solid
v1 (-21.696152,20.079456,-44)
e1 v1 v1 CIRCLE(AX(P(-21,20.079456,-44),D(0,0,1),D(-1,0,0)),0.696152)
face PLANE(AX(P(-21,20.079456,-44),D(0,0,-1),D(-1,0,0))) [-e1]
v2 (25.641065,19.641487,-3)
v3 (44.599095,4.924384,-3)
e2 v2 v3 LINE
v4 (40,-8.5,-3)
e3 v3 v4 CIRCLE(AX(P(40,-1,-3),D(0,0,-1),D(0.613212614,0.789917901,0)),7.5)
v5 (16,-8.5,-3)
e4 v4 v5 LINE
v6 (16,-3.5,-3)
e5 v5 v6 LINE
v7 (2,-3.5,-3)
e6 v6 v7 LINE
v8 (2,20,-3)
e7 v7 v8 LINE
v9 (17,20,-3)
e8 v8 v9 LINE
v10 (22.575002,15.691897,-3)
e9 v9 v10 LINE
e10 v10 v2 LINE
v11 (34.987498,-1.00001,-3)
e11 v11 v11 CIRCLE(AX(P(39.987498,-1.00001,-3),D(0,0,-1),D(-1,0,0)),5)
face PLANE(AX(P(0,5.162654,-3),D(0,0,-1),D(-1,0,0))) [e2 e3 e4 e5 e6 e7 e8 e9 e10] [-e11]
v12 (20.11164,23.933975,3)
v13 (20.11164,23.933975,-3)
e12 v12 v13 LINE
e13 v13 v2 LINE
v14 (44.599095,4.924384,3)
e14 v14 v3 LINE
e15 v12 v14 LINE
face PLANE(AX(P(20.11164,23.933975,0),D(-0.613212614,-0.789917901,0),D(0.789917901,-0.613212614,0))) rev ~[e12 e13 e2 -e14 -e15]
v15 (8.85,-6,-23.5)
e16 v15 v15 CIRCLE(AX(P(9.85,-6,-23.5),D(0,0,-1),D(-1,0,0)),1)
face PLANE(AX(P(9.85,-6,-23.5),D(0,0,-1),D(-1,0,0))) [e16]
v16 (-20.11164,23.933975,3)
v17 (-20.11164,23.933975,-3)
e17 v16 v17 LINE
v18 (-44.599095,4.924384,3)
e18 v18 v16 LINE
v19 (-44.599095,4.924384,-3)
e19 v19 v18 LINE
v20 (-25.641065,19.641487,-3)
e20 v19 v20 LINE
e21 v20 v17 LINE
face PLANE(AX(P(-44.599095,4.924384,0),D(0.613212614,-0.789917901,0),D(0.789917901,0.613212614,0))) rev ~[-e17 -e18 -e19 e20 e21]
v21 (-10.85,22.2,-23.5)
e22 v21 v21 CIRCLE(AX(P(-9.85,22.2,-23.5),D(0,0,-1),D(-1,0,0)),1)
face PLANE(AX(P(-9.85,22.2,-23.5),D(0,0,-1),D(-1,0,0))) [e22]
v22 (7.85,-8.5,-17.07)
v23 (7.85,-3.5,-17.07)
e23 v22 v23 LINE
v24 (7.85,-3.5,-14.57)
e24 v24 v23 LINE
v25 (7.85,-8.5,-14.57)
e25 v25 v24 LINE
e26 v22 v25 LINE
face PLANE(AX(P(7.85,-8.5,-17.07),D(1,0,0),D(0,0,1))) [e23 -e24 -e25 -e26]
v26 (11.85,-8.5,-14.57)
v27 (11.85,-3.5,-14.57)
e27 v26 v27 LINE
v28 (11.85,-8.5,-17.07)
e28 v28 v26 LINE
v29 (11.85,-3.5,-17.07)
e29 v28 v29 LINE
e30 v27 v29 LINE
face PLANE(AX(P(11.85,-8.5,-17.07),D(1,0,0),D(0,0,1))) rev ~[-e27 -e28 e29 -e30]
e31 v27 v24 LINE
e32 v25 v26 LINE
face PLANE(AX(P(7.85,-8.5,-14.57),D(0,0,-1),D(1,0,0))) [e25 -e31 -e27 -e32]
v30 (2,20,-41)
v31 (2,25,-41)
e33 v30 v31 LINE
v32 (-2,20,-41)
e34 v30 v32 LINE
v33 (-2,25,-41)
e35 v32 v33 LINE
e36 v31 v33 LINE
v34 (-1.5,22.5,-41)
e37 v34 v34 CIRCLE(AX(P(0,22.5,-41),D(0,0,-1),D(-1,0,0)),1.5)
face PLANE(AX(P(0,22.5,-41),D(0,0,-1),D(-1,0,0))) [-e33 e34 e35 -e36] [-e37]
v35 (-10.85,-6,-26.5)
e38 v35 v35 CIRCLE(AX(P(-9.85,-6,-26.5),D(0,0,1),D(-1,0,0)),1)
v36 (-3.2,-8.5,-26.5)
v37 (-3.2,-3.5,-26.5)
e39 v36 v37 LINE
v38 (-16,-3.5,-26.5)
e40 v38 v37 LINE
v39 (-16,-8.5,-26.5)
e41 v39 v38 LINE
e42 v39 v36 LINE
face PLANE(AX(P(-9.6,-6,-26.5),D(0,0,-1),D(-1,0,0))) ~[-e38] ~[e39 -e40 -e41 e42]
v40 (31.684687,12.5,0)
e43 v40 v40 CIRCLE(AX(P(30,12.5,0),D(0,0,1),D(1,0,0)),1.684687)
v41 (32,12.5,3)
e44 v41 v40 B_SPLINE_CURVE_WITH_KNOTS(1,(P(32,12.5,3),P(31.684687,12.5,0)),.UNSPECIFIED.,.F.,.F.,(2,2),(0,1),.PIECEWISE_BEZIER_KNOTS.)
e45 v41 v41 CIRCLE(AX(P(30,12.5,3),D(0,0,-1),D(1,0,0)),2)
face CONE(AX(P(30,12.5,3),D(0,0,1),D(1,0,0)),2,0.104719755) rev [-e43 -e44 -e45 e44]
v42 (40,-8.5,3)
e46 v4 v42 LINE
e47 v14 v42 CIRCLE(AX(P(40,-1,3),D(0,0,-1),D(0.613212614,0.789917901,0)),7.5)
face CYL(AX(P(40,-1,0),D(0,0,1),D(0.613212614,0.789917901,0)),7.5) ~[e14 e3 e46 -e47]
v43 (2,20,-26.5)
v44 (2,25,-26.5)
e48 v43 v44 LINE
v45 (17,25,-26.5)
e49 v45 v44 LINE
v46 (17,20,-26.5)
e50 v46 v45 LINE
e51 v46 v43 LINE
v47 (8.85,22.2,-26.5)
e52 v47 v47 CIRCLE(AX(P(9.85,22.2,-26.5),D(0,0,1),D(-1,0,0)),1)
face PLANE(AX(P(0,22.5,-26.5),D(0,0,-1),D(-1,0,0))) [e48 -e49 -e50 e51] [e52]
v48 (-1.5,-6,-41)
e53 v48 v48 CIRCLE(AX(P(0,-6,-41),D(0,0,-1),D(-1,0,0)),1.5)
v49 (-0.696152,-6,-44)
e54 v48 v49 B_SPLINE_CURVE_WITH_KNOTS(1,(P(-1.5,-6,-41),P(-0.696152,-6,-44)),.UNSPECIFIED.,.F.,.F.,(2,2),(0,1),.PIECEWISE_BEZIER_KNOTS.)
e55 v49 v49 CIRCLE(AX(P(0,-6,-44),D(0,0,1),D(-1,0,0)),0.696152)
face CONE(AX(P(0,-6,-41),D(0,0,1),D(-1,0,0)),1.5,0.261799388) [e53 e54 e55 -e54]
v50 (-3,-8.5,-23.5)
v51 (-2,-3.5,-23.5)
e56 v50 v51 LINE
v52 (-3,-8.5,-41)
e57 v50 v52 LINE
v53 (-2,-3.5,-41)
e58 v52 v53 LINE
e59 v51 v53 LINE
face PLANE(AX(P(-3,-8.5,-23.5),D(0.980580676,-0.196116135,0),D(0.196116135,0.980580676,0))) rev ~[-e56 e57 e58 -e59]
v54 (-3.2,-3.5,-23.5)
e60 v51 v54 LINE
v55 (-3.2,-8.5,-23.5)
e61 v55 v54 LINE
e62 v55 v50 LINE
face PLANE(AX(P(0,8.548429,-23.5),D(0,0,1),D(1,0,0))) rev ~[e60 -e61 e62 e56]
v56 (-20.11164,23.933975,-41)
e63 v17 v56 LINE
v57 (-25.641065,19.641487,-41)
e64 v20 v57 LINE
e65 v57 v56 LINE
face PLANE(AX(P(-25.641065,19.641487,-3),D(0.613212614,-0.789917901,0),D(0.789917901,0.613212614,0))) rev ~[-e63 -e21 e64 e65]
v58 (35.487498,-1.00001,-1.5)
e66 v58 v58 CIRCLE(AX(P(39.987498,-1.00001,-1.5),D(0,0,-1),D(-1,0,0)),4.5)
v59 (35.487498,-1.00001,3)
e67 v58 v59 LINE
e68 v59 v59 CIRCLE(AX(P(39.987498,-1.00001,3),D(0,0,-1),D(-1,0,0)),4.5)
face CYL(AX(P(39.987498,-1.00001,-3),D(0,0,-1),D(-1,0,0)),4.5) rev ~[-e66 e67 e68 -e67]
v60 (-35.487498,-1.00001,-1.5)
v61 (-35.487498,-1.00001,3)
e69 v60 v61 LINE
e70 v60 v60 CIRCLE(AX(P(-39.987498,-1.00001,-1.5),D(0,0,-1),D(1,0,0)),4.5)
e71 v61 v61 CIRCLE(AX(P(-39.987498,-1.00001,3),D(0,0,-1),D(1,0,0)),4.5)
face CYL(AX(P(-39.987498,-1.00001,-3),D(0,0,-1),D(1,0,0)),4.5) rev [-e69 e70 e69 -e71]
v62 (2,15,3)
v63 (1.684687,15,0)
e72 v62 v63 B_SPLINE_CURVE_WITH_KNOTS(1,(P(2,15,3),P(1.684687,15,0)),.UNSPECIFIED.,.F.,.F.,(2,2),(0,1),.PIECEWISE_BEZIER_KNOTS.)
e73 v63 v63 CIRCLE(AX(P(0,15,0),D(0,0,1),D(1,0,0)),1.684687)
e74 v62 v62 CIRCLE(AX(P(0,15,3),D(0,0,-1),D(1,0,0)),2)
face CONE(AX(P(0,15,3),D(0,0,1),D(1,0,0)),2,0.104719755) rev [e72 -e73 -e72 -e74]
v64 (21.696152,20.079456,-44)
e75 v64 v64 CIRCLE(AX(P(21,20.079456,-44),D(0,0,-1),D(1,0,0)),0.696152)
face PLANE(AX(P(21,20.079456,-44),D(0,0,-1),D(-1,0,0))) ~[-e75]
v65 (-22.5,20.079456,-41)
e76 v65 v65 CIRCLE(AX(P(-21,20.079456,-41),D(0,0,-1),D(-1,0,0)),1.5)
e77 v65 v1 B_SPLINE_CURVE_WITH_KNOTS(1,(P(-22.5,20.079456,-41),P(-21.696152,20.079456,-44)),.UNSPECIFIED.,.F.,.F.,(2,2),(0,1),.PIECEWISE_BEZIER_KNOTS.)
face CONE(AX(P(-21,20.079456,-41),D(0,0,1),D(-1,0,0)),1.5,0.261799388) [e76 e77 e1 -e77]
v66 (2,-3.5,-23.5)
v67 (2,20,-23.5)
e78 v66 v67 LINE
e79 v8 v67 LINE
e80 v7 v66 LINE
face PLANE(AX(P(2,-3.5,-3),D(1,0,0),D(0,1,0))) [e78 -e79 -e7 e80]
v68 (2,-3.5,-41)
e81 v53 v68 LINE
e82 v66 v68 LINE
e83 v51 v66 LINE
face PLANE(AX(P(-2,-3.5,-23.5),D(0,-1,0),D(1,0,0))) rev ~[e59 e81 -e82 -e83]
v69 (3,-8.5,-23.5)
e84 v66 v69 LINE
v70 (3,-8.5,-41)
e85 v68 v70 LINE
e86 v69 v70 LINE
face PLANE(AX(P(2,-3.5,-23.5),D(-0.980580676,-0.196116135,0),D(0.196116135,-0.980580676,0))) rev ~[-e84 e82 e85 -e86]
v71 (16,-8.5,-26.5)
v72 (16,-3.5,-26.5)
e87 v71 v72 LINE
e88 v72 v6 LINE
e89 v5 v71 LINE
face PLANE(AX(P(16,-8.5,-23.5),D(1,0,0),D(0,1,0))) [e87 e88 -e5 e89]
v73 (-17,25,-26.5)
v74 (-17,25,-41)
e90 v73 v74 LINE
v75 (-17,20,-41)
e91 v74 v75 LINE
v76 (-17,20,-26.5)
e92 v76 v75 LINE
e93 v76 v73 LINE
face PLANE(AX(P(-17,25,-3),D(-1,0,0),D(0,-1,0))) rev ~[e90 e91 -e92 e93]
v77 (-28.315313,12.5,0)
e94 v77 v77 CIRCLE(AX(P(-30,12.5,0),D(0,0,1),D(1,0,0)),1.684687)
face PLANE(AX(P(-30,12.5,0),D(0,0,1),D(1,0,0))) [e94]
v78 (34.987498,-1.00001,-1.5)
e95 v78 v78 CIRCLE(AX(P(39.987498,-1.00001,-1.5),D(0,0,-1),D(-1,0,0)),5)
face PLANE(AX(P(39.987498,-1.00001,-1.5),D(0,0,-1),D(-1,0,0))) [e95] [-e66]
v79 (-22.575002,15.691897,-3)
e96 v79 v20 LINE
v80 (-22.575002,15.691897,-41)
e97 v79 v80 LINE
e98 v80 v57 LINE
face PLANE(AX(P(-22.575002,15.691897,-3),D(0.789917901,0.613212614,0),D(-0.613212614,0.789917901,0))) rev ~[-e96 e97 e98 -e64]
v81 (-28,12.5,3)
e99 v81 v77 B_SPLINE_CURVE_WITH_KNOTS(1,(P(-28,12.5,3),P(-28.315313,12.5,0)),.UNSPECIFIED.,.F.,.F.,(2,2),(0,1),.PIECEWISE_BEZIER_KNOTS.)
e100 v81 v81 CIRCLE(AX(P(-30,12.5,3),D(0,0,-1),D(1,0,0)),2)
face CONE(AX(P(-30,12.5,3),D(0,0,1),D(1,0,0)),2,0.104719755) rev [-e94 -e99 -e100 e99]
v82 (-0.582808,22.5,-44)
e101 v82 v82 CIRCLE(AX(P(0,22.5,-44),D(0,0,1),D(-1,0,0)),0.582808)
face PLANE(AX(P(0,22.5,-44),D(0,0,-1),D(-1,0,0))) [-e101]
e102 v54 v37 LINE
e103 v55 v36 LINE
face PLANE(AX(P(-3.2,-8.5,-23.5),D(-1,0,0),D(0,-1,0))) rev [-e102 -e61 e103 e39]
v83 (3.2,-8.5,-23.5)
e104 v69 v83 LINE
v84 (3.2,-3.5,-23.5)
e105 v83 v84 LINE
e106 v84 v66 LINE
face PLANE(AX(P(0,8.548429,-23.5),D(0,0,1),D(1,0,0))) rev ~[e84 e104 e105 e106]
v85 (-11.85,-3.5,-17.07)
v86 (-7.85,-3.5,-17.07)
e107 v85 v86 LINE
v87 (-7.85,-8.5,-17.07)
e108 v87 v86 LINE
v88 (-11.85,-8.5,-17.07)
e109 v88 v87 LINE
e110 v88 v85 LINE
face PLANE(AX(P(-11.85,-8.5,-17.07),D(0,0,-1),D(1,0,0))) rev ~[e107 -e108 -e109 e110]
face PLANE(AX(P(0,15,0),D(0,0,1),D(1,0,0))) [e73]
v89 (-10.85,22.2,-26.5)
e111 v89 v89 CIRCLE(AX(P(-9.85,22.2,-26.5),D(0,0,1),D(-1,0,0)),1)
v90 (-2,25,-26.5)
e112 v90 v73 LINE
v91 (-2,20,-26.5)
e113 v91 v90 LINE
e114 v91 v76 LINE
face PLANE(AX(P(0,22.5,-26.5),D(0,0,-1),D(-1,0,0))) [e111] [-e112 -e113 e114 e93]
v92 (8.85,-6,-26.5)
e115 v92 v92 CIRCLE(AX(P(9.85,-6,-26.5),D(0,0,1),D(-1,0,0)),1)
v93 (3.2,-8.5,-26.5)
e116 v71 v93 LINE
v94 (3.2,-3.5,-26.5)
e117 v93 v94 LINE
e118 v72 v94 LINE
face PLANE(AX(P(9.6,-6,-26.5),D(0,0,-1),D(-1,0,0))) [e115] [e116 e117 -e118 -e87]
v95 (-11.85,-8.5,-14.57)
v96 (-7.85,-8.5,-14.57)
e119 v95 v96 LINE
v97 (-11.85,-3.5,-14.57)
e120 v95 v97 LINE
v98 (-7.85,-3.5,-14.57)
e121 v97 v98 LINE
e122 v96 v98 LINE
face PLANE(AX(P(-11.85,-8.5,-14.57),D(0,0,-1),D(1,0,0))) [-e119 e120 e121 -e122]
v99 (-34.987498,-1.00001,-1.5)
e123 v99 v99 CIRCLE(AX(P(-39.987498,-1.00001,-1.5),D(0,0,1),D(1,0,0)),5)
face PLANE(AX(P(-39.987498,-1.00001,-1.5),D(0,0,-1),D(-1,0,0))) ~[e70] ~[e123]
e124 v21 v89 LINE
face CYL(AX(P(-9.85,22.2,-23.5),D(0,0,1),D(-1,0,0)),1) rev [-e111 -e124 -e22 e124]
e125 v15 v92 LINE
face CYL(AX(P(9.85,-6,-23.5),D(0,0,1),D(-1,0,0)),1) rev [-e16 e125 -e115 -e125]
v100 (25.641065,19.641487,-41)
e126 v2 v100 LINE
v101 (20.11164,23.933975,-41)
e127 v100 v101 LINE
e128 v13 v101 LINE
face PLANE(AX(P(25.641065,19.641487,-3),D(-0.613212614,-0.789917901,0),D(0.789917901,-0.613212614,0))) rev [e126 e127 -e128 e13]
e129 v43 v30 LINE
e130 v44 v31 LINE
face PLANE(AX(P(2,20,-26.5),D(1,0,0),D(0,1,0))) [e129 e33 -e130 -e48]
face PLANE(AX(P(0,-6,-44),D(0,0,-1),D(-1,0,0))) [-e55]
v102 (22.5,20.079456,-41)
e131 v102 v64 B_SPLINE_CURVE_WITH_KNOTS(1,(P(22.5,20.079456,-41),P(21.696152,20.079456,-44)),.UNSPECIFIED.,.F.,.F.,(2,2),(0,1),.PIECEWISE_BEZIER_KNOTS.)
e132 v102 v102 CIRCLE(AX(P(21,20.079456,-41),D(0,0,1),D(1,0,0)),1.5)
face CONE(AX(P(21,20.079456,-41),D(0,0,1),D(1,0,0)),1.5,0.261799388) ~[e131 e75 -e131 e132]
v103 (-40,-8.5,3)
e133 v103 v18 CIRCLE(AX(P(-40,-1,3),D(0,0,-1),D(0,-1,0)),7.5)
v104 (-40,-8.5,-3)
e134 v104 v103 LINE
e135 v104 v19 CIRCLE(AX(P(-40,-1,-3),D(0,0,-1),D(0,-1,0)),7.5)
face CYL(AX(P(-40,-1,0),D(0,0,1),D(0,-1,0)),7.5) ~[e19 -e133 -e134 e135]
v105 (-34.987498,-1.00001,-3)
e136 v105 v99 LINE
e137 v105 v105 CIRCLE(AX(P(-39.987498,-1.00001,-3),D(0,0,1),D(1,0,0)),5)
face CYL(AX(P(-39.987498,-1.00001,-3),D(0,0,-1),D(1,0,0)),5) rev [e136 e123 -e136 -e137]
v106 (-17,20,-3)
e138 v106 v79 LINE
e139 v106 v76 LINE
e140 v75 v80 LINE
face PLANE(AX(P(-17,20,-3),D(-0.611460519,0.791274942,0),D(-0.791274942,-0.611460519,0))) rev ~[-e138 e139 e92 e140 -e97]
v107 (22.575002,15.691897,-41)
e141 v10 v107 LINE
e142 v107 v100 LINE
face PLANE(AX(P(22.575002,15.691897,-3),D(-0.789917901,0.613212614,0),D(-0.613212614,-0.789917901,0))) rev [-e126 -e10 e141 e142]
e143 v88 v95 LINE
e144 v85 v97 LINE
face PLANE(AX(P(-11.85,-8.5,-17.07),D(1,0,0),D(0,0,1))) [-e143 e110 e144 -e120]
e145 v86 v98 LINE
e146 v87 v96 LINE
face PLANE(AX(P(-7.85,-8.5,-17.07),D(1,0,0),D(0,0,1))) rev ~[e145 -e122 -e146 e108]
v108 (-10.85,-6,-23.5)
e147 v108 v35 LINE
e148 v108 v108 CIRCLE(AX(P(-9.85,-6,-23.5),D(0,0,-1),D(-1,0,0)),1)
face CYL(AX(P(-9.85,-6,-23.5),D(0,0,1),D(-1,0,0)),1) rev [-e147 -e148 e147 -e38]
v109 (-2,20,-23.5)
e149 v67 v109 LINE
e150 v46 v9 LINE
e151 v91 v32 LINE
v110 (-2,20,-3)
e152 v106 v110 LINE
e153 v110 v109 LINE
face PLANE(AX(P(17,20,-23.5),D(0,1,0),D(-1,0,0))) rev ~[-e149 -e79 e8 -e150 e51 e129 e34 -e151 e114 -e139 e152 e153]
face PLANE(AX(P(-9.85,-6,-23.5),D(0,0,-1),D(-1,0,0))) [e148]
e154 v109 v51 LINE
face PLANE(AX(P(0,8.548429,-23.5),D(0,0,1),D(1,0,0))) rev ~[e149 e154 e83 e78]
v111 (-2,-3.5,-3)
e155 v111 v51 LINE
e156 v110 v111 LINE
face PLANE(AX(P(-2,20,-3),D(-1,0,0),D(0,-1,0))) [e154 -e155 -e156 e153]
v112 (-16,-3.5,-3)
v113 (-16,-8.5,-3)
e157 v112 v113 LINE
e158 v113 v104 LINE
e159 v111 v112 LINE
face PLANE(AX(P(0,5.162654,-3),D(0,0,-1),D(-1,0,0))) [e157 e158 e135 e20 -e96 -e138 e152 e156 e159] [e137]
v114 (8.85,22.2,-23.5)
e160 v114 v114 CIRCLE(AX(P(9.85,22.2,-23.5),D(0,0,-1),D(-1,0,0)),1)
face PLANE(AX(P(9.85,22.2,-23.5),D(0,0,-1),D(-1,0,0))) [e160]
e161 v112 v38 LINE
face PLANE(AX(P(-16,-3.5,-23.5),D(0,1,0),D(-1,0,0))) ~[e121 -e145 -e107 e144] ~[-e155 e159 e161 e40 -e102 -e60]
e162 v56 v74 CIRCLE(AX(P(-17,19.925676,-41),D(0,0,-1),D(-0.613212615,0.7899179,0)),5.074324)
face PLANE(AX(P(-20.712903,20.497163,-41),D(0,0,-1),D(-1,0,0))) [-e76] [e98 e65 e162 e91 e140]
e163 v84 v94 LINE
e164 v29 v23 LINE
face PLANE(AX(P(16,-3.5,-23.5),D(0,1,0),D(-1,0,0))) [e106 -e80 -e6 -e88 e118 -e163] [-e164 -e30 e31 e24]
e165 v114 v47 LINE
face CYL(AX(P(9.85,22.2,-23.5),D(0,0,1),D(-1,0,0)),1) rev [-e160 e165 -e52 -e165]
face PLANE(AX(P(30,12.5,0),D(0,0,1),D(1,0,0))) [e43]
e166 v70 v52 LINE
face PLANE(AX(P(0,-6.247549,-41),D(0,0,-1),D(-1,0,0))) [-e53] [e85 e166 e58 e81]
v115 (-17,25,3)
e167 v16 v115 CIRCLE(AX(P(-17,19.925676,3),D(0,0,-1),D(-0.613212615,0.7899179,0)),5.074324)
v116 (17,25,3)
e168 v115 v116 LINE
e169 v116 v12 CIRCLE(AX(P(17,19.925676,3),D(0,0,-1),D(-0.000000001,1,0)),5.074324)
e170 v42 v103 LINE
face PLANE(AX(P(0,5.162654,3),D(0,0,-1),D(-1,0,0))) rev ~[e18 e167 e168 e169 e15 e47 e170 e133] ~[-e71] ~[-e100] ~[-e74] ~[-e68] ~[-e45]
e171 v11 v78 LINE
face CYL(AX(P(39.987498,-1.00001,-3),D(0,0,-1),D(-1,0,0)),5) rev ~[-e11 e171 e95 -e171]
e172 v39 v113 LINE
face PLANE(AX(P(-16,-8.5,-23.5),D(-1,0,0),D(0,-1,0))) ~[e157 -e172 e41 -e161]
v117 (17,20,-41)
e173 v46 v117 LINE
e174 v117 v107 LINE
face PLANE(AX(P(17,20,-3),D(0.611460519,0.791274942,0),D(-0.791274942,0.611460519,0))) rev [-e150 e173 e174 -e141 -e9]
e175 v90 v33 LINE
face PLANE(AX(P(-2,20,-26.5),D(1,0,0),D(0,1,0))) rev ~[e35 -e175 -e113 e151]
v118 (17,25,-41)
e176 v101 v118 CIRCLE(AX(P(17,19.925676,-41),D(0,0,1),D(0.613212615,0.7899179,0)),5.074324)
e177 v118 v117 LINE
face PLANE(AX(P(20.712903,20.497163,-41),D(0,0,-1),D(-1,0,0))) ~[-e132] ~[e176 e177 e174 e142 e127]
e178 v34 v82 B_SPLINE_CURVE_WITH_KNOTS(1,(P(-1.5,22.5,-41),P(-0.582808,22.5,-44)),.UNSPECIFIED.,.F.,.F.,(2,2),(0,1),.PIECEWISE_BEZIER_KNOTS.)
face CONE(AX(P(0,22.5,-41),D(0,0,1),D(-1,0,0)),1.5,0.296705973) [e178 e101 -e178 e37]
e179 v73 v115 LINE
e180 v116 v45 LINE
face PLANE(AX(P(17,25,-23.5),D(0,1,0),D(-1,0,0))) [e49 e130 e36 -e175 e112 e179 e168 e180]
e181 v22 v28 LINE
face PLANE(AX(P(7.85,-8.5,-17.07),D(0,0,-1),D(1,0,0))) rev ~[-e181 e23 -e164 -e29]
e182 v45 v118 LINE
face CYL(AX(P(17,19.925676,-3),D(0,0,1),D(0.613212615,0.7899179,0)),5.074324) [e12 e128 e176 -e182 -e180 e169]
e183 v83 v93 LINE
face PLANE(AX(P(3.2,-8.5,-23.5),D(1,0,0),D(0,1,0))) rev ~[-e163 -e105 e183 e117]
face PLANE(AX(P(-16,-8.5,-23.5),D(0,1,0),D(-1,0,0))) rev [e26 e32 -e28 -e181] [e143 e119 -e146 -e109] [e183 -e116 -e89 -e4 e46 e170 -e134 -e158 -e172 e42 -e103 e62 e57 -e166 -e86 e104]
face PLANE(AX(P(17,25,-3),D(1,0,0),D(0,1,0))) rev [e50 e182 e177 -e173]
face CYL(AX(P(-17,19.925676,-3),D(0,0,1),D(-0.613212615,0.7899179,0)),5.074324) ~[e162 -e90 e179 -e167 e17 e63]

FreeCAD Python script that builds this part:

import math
import FreeCAD as App
import Part
import Sketcher

V = App.Vector

doc = App.newDocument("Part")
params = doc.addObject("Spreadsheet::Sheet", "Params")
for row, (alias, value) in enumerate([
    ("sketch1_radius", "7.5 mm"),
    ("sketch1_width", "80 mm"),
    ("sketch1_width2", "34 mm"),
    ("sketch1_length", "31 mm"),
    ("pad1_length", "6 mm"),
    ("sketch2_diameter", "9 mm"),
    ("pocket1_length", "8 mm"),
    ("sketch3_diameter", "10 mm"),
    ("pocket2_length", "1.5 mm"),
    ("sketch4_width", "34 mm"),
    ("sketch4_width2", "15 mm"),
    ("sketch4_width3", "14 mm"),
    ("sketch4_height", "5 mm"),
    ("sketch4_height2", "23.5 mm"),
    ("pad2_length", "20.5 mm"),
    ("sketch5_height", "5 mm"),
    ("sketch5_length", "5 mm"),
    ("sketch5_length2", "7 mm"),
    ("pad3_length", "38 mm"),
    ("sketch6_width", "4 mm"),
    ("sketch6_width2", "6 mm"),
    ("pad4_length", "17.5 mm"),
    ("sketch7_diameter", "3 mm"),
    ("pad5_length", "3 mm"),
    ("pad5_taper", "-15 deg"),
    ("sketch8_diameter", "4 mm"),
    ("pocket3_length", "3 mm"),
    ("pocket3_taper", "-6 deg"),
    ("sketch9_height", "5 mm"),
    ("sketch9_width", "12.8 mm"),
    ("pad6_length", "3 mm"),
    ("sketch10_width", "34 mm"),
    ("sketch10_height", "5 mm"),
    ("pad7_length", "3 mm"),
    ("sketch11_diameter", "2 mm"),
    ("pocket4_length", "5 mm"),
    ("sketch12_width", "4 mm"),
    ("sketch12_height", "2.5 mm"),
    ("pocket5_length", "10 mm"),
    ("sketch13_width", "4 mm"),
    ("sketch13_height", "5 mm"),
    ("pad8_length", "14.5 mm"),
    ("sketch14_diameter", "3 mm"),
    ("pad9_length", "3 mm"),
    ("pad9_taper", "-17 deg"),
], start=1):
    params.set(f"A{row}", alias)
    params.set(f"B{row}", "=" + value)
    params.setAlias(f"B{row}", alias)

body = doc.addObject("PartDesign::Body", "Body")

# Sketch on XY plane
sketch1 = body.newObject("Sketcher::SketchObject", "Sketch")
sketch1.AttachmentSupport = (doc.getObject("XY_Plane"), [""])
sketch1.MapMode = "FlatFace"
sketch1.addGeometry(Part.LineSegment(V(-20.1, 23.9, 0), V(-44.6, 4.9, 0)), False)
sketch1.addGeometry(Part.ArcOfCircle(Part.Circle(V(-40, -1, 0), V(0, 0, 1), 7.5), math.radians(128), math.radians(270)), False)
sketch1.addGeometry(Part.LineSegment(V(-40, -8.5, 0), V(40, -8.5, 0)), False)
sketch1.addGeometry(Part.ArcOfCircle(Part.Circle(V(40, -1, 0), V(0, 0, 1), 7.5), math.radians(-90), math.radians(52)), False)
sketch1.addGeometry(Part.LineSegment(V(44.6, 4.9, 0), V(20.1, 23.9, 0)), False)
sketch1.addGeometry(Part.ArcOfCircle(Part.Circle(V(17, 19.9, 0), V(0, 0, 1), 5.1), math.radians(52), math.radians(90)), False)
sketch1.addGeometry(Part.LineSegment(V(17, 25, 0), V(-17, 25, 0)), False)
sketch1.addGeometry(Part.ArcOfCircle(Part.Circle(V(-17, 19.9, 0), V(0, 0, 1), 5.1), math.radians(90), math.radians(128)), False)
sketch1.addConstraint(Sketcher.Constraint("Tangent", 0, 2, 1, 1))
sketch1.addConstraint(Sketcher.Constraint("Tangent", 1, 2, 2, 1))
sketch1.addConstraint(Sketcher.Constraint("Tangent", 2, 2, 3, 1))
sketch1.addConstraint(Sketcher.Constraint("Tangent", 3, 2, 4, 1))
sketch1.addConstraint(Sketcher.Constraint("Tangent", 4, 2, 5, 1))
sketch1.addConstraint(Sketcher.Constraint("Tangent", 5, 2, 6, 1))
sketch1.addConstraint(Sketcher.Constraint("Tangent", 6, 2, 7, 1))
sketch1.addConstraint(Sketcher.Constraint("Tangent", 7, 2, 0, 1))
sketch1.addConstraint(Sketcher.Constraint("Horizontal", 2))
sketch1.addConstraint(Sketcher.Constraint("Horizontal", 6))
sketch1.addConstraint(Sketcher.Constraint("Equal", 1, 3))
sketch1.addConstraint(Sketcher.Constraint("Equal", 5, 7))
sketch1.addConstraint(Sketcher.Constraint("Symmetric", 0, 2, 3, 2, -2))
sketch1.addConstraint(Sketcher.Constraint("Radius", 1, 7.5))
sketch1.addConstraint(Sketcher.Constraint("DistanceX", 2, 1, 2, 2, 80.0))
sketch1.addConstraint(Sketcher.Constraint("DistanceX", 6, 2, 6, 1, 34.0))
sketch1.addConstraint(Sketcher.Constraint("Distance", 0, 31.0))
sketch1.addConstraint(Sketcher.Constraint("DistanceY", 1, 3, -1, 1, 1.0))
sketch1.addConstraint(Sketcher.Constraint("DistanceY", -1, 1, 5, 2, 25.0))
sketch1.setExpression("Constraints[13]", "Params.sketch1_radius")
sketch1.setExpression("Constraints[14]", "Params.sketch1_width")
sketch1.setExpression("Constraints[15]", "Params.sketch1_width2")
sketch1.setExpression("Constraints[16]", "Params.sketch1_length")
pad1 = body.newObject("PartDesign::Pad", "Pad")
pad1.Profile = sketch1
pad1.setExpression("Length", "Params.pad1_length")
pad1.Midplane = True

# Sketch on XY plane
sketch2 = body.newObject("Sketcher::SketchObject", "Sketch001")
sketch2.AttachmentSupport = (doc.getObject("XY_Plane"), [""])
sketch2.MapMode = "FlatFace"
sketch2.AttachmentOffset = App.Placement(V(0, 0, -3), App.Rotation())
sketch2.addGeometry(Part.Circle(V(40, -1, 0), V(0, 0, 1), 4.5), False)
sketch2.addConstraint(Sketcher.Constraint("Diameter", 0, 9.0))
sketch2.addConstraint(Sketcher.Constraint("DistanceY", 0, 3, -1, 1, 1.00001))
sketch2.addConstraint(Sketcher.Constraint("DistanceX", -1, 1, 0, 3, 39.987498))
sketch2.setExpression("Constraints[0]", "Params.sketch2_diameter")
pocket1 = body.newObject("PartDesign::Pocket", "Pocket")
pocket1.Profile = sketch2
pocket1.setExpression("Length", "Params.pocket1_length")
pocket1.Reversed = True

# Sketch on XY plane
sketch3 = body.newObject("Sketcher::SketchObject", "Sketch002")
sketch3.AttachmentSupport = (doc.getObject("XY_Plane"), [""])
sketch3.MapMode = "FlatFace"
sketch3.AttachmentOffset = App.Placement(V(0, 0, -3), App.Rotation())
sketch3.addGeometry(Part.Circle(V(40, -1, 0), V(0, 0, 1), 5), False)
sketch3.addConstraint(Sketcher.Constraint("Diameter", 0, 10.0))
sketch3.addConstraint(Sketcher.Constraint("DistanceY", 0, 3, -1, 1, 1.00001))
sketch3.addConstraint(Sketcher.Constraint("DistanceX", -1, 1, 0, 3, 39.987498))
sketch3.setExpression("Constraints[0]", "Params.sketch3_diameter")
pocket2 = body.newObject("PartDesign::Pocket", "Pocket001")
pocket2.Profile = sketch3
pocket2.setExpression("Length", "Params.pocket2_length")
pocket2.Reversed = True
doc.recompute()

mirrored = body.newObject("PartDesign::Mirrored", "Mirrored")
mirrored.Originals = [pocket1, pocket2]
mirrored.MirrorPlane = (doc.getObject("YZ_Plane"), [""])
body.Tip = mirrored

# Sketch on XY plane
sketch4 = body.newObject("Sketcher::SketchObject", "Sketch003")
sketch4.AttachmentSupport = (doc.getObject("XY_Plane"), [""])
sketch4.MapMode = "FlatFace"
sketch4.AttachmentOffset = App.Placement(V(0, 0, -3), App.Rotation())
sketch4.addGeometry(Part.LineSegment(V(-17, 25, 0), V(17, 25, 0)), False)
sketch4.addGeometry(Part.LineSegment(V(17, 25, 0), V(17, 20, 0)), False)
sketch4.addGeometry(Part.LineSegment(V(17, 20, 0), V(2, 20, 0)), False)
sketch4.addGeometry(Part.LineSegment(V(2, 20, 0), V(2, -4, 0)), False)
sketch4.addGeometry(Part.LineSegment(V(2, -4, 0), V(16, -4, 0)), False)
sketch4.addGeometry(Part.LineSegment(V(16, -4, 0), V(16, -8, 0)), False)
sketch4.addGeometry(Part.LineSegment(V(16, -8, 0), V(-16, -8, 0)), False)
sketch4.addGeometry(Part.LineSegment(V(-16, -8, 0), V(-16, -4, 0)), False)
sketch4.addGeometry(Part.LineSegment(V(-16, -4, 0), V(-2, -4, 0)), False)
sketch4.addGeometry(Part.LineSegment(V(-2, -4, 0), V(-2, 20, 0)), False)
sketch4.addGeometry(Part.LineSegment(V(-2, 20, 0), V(-17, 20, 0)), False)
sketch4.addGeometry(Part.LineSegment(V(-17, 20, 0), V(-17, 25, 0)), False)
sketch4.addConstraint(Sketcher.Constraint("Coincident", 0, 2, 1, 1))
sketch4.addConstraint(Sketcher.Constraint("Coincident", 1, 2, 2, 1))
sketch4.addConstraint(Sketcher.Constraint("Coincident", 2, 2, 3, 1))
sketch4.addConstraint(Sketcher.Constraint("Coincident", 3, 2, 4, 1))
sketch4.addConstraint(Sketcher.Constraint("Coincident", 4, 2, 5, 1))
sketch4.addConstraint(Sketcher.Constraint("Coincident", 5, 2, 6, 1))
sketch4.addConstraint(Sketcher.Constraint("Coincident", 6, 2, 7, 1))
sketch4.addConstraint(Sketcher.Constraint("Coincident", 7, 2, 8, 1))
sketch4.addConstraint(Sketcher.Constraint("Coincident", 8, 2, 9, 1))
sketch4.addConstraint(Sketcher.Constraint("Coincident", 9, 2, 10, 1))
sketch4.addConstraint(Sketcher.Constraint("Coincident", 10, 2, 11, 1))
sketch4.addConstraint(Sketcher.Constraint("Coincident", 11, 2, 0, 1))
sketch4.addConstraint(Sketcher.Constraint("Horizontal", 0))
sketch4.addConstraint(Sketcher.Constraint("Vertical", 1))
sketch4.addConstraint(Sketcher.Constraint("Horizontal", 2))
sketch4.addConstraint(Sketcher.Constraint("Vertical", 3))
sketch4.addConstraint(Sketcher.Constraint("Horizontal", 4))
sketch4.addConstraint(Sketcher.Constraint("Vertical", 5))
sketch4.addConstraint(Sketcher.Constraint("Horizontal", 6))
sketch4.addConstraint(Sketcher.Constraint("Vertical", 7))
sketch4.addConstraint(Sketcher.Constraint("Horizontal", 8))
sketch4.addConstraint(Sketcher.Constraint("Vertical", 9))
sketch4.addConstraint(Sketcher.Constraint("Horizontal", 10))
sketch4.addConstraint(Sketcher.Constraint("Vertical", 11))
sketch4.addConstraint(Sketcher.Constraint("Symmetric", 4, 2, 7, 2, -2))
sketch4.addConstraint(Sketcher.Constraint("Symmetric", 2, 2, 9, 2, -2))
sketch4.addConstraint(Sketcher.Constraint("Equal", 2, 10))
sketch4.addConstraint(Sketcher.Constraint("Equal", 1, 5))
sketch4.addConstraint(Sketcher.Constraint("DistanceX", 0, 1, 0, 2, 34.0))
sketch4.addConstraint(Sketcher.Constraint("DistanceX", 2, 2, 2, 1, 15.0))
sketch4.addConstraint(Sketcher.Constraint("DistanceX", 4, 1, 4, 2, 14.0))
sketch4.addConstraint(Sketcher.Constraint("DistanceY", 1, 2, 1, 1, 5.0))
sketch4.addConstraint(Sketcher.Constraint("DistanceY", 3, 2, 3, 1, 23.5))
sketch4.addConstraint(Sketcher.Constraint("DistanceY", -1, 1, 0, 2, 25.0))
sketch4.setExpression("Constraints[28]", "Params.sketch4_width")
sketch4.setExpression("Constraints[29]", "Params.sketch4_width2")
sketch4.setExpression("Constraints[30]", "Params.sketch4_width3")
sketch4.setExpression("Constraints[31]", "Params.sketch4_height")
sketch4.setExpression("Constraints[32]", "Params.sketch4_height2")
pad2 = body.newObject("PartDesign::Pad", "Pad001")
pad2.Profile = sketch4
pad2.setExpression("Length", "Params.pad2_length")
pad2.Reversed = True

# Sketch on XY plane
sketch5 = body.newObject("Sketcher::SketchObject", "Sketch004")
sketch5.AttachmentSupport = (doc.getObject("XY_Plane"), [""])
sketch5.MapMode = "FlatFace"
sketch5.AttachmentOffset = App.Placement(V(0, 0, -3), App.Rotation())
sketch5.addGeometry(Part.LineSegment(V(-17, 20, 0), V(-22.6, 15.7, 0)), False)
sketch5.addGeometry(Part.LineSegment(V(-22.6, 15.7, 0), V(-25.6, 19.6, 0)), False)
sketch5.addGeometry(Part.LineSegment(V(-25.6, 19.6, 0), V(-20.1, 23.9, 0)), False)
sketch5.addGeometry(Part.ArcOfCircle(Part.Circle(V(-17, 19.9, 0), V(0, 0, 1), 5.1), math.radians(90), math.radians(128)), False)
sketch5.addGeometry(Part.LineSegment(V(-17, 25, 0), V(-17, 20, 0)), False)
sketch5.addConstraint(Sketcher.Constraint("Coincident", 0, 2, 1, 1))
sketch5.addConstraint(Sketcher.Constraint("Coincident", 1, 2, 2, 1))
sketch5.addConstraint(Sketcher.Constraint("Tangent", 2, 2, 3, 2))
sketch5.addConstraint(Sketcher.Constraint("Coincident", 3, 1, 4, 1))
sketch5.addConstraint(Sketcher.Constraint("Coincident", 4, 2, 0, 1))
sketch5.addConstraint(Sketcher.Constraint("Vertical", 4))
sketch5.addConstraint(Sketcher.Constraint("Perpendicular", 1, 2))
sketch5.addConstraint(Sketcher.Constraint("DistanceY", 4, 2, 4, 1, 5.0))
sketch5.addConstraint(Sketcher.Constraint("Distance", 1, 5.0))
sketch5.addConstraint(Sketcher.Constraint("Distance", 2, 7.0))
sketch5.addConstraint(Sketcher.Constraint("DistanceX", 3, 3, -1, 1, 17.0))
sketch5.addConstraint(Sketcher.Constraint("DistanceX", 3, 1, -1, 1, 17.0))
sketch5.addConstraint(Sketcher.Constraint("DistanceY", -1, 1, 3, 1, 25.0))
sketch5.addConstraint(Sketcher.Constraint("DistanceX", 0, 2, -1, 1, 22.575002))
sketch5.addConstraint(Sketcher.Constraint("Radius", 3, 5.074324))
sketch5.setExpression("Constraints[7]", "Params.sketch5_height")
sketch5.setExpression("Constraints[8]", "Params.sketch5_length")
sketch5.setExpression("Constraints[9]", "Params.sketch5_length2")
pad3 = body.newObject("PartDesign::Pad", "Pad002")
pad3.Profile = sketch5
pad3.setExpression("Length", "Params.pad3_length")
pad3.Reversed = True
doc.recompute()

mirrored2 = body.newObject("PartDesign::Mirrored", "Mirrored001")
mirrored2.Originals = [pad3]
mirrored2.MirrorPlane = (doc.getObject("YZ_Plane"), [""])
body.Tip = mirrored2

# Sketch on XY plane
sketch6 = body.newObject("Sketcher::SketchObject", "Sketch005")
sketch6.AttachmentSupport = (doc.getObject("XY_Plane"), [""])
sketch6.MapMode = "FlatFace"
sketch6.AttachmentOffset = App.Placement(V(0, 0, -23.5), App.Rotation())
sketch6.addGeometry(Part.LineSegment(V(-3, -8.5, 0), V(-2, -3.5, 0)), False)
sketch6.addGeometry(Part.LineSegment(V(-2, -3.5, 0), V(2, -3.5, 0)), False)
sketch6.addGeometry(Part.LineSegment(V(2, -3.5, 0), V(3, -8.5, 0)), False)
sketch6.addGeometry(Part.LineSegment(V(3, -8.5, 0), V(-3, -8.5, 0)), False)
sketch6.addConstraint(Sketcher.Constraint("Coincident", 0, 2, 1, 1))
sketch6.addConstraint(Sketcher.Constraint("Coincident", 1, 2, 2, 1))
sketch6.addConstraint(Sketcher.Constraint("Coincident", 2, 2, 3, 1))
sketch6.addConstraint(Sketcher.Constraint("Coincident", 3, 2, 0, 1))
sketch6.addConstraint(Sketcher.Constraint("Horizontal", 1))
sketch6.addConstraint(Sketcher.Constraint("Horizontal", 3))
sketch6.addConstraint(Sketcher.Constraint("Equal", 0, 2))
sketch6.addConstraint(Sketcher.Constraint("DistanceX", 1, 1, 1, 2, 4.0))
sketch6.addConstraint(Sketcher.Constraint("DistanceX", 3, 2, 3, 1, 6.0))
sketch6.addConstraint(Sketcher.Constraint("DistanceX", 0, 2, -1, 1, 2.0))
sketch6.addConstraint(Sketcher.Constraint("DistanceY", 2, 2, 1, 2, 5.0))
sketch6.addConstraint(Sketcher.Constraint("DistanceY", 0, 2, -1, 1, 3.5))
sketch6.setExpression("Constraints[7]", "Params.sketch6_width")
sketch6.setExpression("Constraints[8]", "Params.sketch6_width2")
pad4 = body.newObject("PartDesign::Pad", "Pad003")
pad4.Profile = sketch6
pad4.setExpression("Length", "Params.pad4_length")
pad4.Reversed = True

# Sketch on XY plane
sketch7 = body.newObject("Sketcher::SketchObject", "Sketch006")
sketch7.AttachmentSupport = (doc.getObject("XY_Plane"), [""])
sketch7.MapMode = "FlatFace"
sketch7.AttachmentOffset = App.Placement(V(0, 0, -41), App.Rotation())
sketch7.addGeometry(Part.Circle(V(-21, 20.1, 0), V(0, 0, 1), 1.5), False)
sketch7.addGeometry(Part.Circle(V(0, -6, 0), V(0, 0, 1), 1.5), False)
sketch7.addConstraint(Sketcher.Constraint("Equal", 0, 1))
sketch7.addConstraint(Sketcher.Constraint("PointOnObject", 1, 3, -2))
sketch7.addConstraint(Sketcher.Constraint("Diameter", 0, 3.0))
sketch7.addConstraint(Sketcher.Constraint("DistanceX", 0, 3, -1, 1, 21.0))
sketch7.addConstraint(Sketcher.Constraint("DistanceY", 1, 3, -1, 1, 6.0))
sketch7.addConstraint(Sketcher.Constraint("DistanceY", -1, 1, 0, 3, 20.079456))
sketch7.setExpression("Constraints[2]", "Params.sketch7_diameter")
pad5 = body.newObject("PartDesign::Pad", "Pad004")
pad5.Profile = sketch7
pad5.setExpression("Length", "Params.pad5_length")
pad5.Reversed = True
pad5.setExpression("TaperAngle", "Params.pad5_taper")
doc.recompute()

mirrored3 = body.newObject("PartDesign::Mirrored", "Mirrored002")
mirrored3.Originals = [pad5]
mirrored3.MirrorPlane = (doc.getObject("YZ_Plane"), [""])
body.Tip = mirrored3

# Sketch on XY plane
sketch8 = body.newObject("Sketcher::SketchObject", "Sketch007")
sketch8.AttachmentSupport = (doc.getObject("XY_Plane"), [""])
sketch8.MapMode = "FlatFace"
sketch8.AttachmentOffset = App.Placement(V(0, 0, 3), App.Rotation())
sketch8.addGeometry(Part.Circle(V(0, 15, 0), V(0, 0, 1), 2), False)
sketch8.addGeometry(Part.Circle(V(30, 12.5, 0), V(0, 0, 1), 2), False)
sketch8.addGeometry(Part.Circle(V(-30, 12.5, 0), V(0, 0, 1), 2), False)
sketch8.addConstraint(Sketcher.Constraint("Equal", 0, 1))
sketch8.addConstraint(Sketcher.Constraint("Equal", 1, 2))
sketch8.addConstraint(Sketcher.Constraint("Symmetric", 1, 3, 2, 3, -2))
sketch8.addConstraint(Sketcher.Constraint("PointOnObject", 0, 3, -2))
sketch8.addConstraint(Sketcher.Constraint("Diameter", 0, 4.0))
sketch8.addConstraint(Sketcher.Constraint("DistanceY", -1, 1, 0, 3, 15.0))
sketch8.addConstraint(Sketcher.Constraint("DistanceX", -1, 1, 1, 3, 30.0))
sketch8.addConstraint(Sketcher.Constraint("DistanceY", -1, 1, 1, 3, 12.5))
sketch8.setExpression("Constraints[4]", "Params.sketch8_diameter")
pocket3 = body.newObject("PartDesign::Pocket", "Pocket002")
pocket3.Profile = sketch8
pocket3.setExpression("Length", "Params.pocket3_length")
pocket3.setExpression("TaperAngle", "Params.pocket3_taper")

# Sketch on XY plane
sketch9 = body.newObject("Sketcher::SketchObject", "Sketch008")
sketch9.AttachmentSupport = (doc.getObject("XY_Plane"), [""])
sketch9.MapMode = "FlatFace"
sketch9.AttachmentOffset = App.Placement(V(0, 0, -23.5), App.Rotation())
sketch9.addGeometry(Part.LineSegment(V(16, -4, 0), V(16, -8, 0)), False)
sketch9.addGeometry(Part.LineSegment(V(16, -8, 0), V(3, -8, 0)), False)
sketch9.addGeometry(Part.LineSegment(V(3, -8, 0), V(3, -4, 0)), False)
sketch9.addGeometry(Part.LineSegment(V(3, -4, 0), V(16, -4, 0)), False)
sketch9.addConstraint(Sketcher.Constraint("Coincident", 0, 2, 1, 1))
sketch9.addConstraint(Sketcher.Constraint("Coincident", 1, 2, 2, 1))
sketch9.addConstraint(Sketcher.Constraint("Coincident", 2, 2, 3, 1))
sketch9.addConstraint(Sketcher.Constraint("Coincident", 3, 2, 0, 1))
sketch9.addConstraint(Sketcher.Constraint("Vertical", 0))
sketch9.addConstraint(Sketcher.Constraint("Horizontal", 1))
sketch9.addConstraint(Sketcher.Constraint("Vertical", 2))
sketch9.addConstraint(Sketcher.Constraint("Horizontal", 3))
sketch9.addConstraint(Sketcher.Constraint("DistanceY", 0, 2, 0, 1, 5.0))
sketch9.addConstraint(Sketcher.Constraint("DistanceX", 1, 2, 1, 1, 12.8))
sketch9.addConstraint(Sketcher.Constraint("DistanceX", -1, 1, 0, 2, 16.0))
sketch9.addConstraint(Sketcher.Constraint("DistanceY", 0, 2, -1, 1, 8.5))
sketch9.setExpression("Constraints[8]", "Params.sketch9_height")
sketch9.setExpression("Constraints[9]", "Params.sketch9_width")
pad6 = body.newObject("PartDesign::Pad", "Pad005")
pad6.Profile = sketch9
pad6.setExpression("Length", "Params.pad6_length")
pad6.Reversed = True
doc.recompute()

mirrored4 = body.newObject("PartDesign::Mirrored", "Mirrored003")
mirrored4.Originals = [pad6]
mirrored4.MirrorPlane = (doc.getObject("YZ_Plane"), [""])
body.Tip = mirrored4

# Sketch on XY plane
sketch10 = body.newObject("Sketcher::SketchObject", "Sketch009")
sketch10.AttachmentSupport = (doc.getObject("XY_Plane"), [""])
sketch10.MapMode = "FlatFace"
sketch10.AttachmentOffset = App.Placement(V(0, 0, -23.5), App.Rotation())
sketch10.addGeometry(Part.LineSegment(V(17, 25, 0), V(17, 20, 0)), False)
sketch10.addGeometry(Part.LineSegment(V(17, 20, 0), V(-17, 20, 0)), False)
sketch10.addGeometry(Part.LineSegment(V(-17, 20, 0), V(-17, 25, 0)), False)
sketch10.addGeometry(Part.LineSegment(V(-17, 25, 0), V(17, 25, 0)), False)
sketch10.addConstraint(Sketcher.Constraint("Coincident", 0, 2, 1, 1))
sketch10.addConstraint(Sketcher.Constraint("Coincident", 1, 2, 2, 1))
sketch10.addConstraint(Sketcher.Constraint("Coincident", 2, 2, 3, 1))
sketch10.addConstraint(Sketcher.Constraint("Coincident", 3, 2, 0, 1))
sketch10.addConstraint(Sketcher.Constraint("Vertical", 0))
sketch10.addConstraint(Sketcher.Constraint("Horizontal", 1))
sketch10.addConstraint(Sketcher.Constraint("Vertical", 2))
sketch10.addConstraint(Sketcher.Constraint("Horizontal", 3))
sketch10.addConstraint(Sketcher.Constraint("DistanceX", 1, 2, 1, 1, 34.0))
sketch10.addConstraint(Sketcher.Constraint("DistanceY", 0, 2, 0, 1, 5.0))
sketch10.addConstraint(Sketcher.Constraint("DistanceX", -1, 1, 0, 2, 17.0))
sketch10.addConstraint(Sketcher.Constraint("DistanceY", -1, 1, 0, 2, 20.0))
sketch10.setExpression("Constraints[8]", "Params.sketch10_width")
sketch10.setExpression("Constraints[9]", "Params.sketch10_height")
pad7 = body.newObject("PartDesign::Pad", "Pad006")
pad7.Profile = sketch10
pad7.setExpression("Length", "Params.pad7_length")
pad7.Reversed = True

# Sketch on XY plane
sketch11 = body.newObject("Sketcher::SketchObject", "Sketch010")
sketch11.AttachmentSupport = (doc.getObject("XY_Plane"), [""])
sketch11.MapMode = "FlatFace"
sketch11.AttachmentOffset = App.Placement(V(0, 0, -23.5), App.Rotation())
sketch11.addGeometry(Part.Circle(V(9.8, -6, 0), V(0, 0, 1), 1), False)
sketch11.addGeometry(Part.Circle(V(9.8, 22.2, 0), V(0, 0, 1), 1), False)
sketch11.addGeometry(Part.Circle(V(-9.8, 22.2, 0), V(0, 0, 1), 1), False)
sketch11.addGeometry(Part.Circle(V(-9.8, -6, 0), V(0, 0, 1), 1), False)
sketch11.addConstraint(Sketcher.Constraint("Equal", 0, 1))
sketch11.addConstraint(Sketcher.Constraint("Equal", 1, 2))
sketch11.addConstraint(Sketcher.Constraint("Equal", 2, 3))
sketch11.addConstraint(Sketcher.Constraint("Symmetric", 1, 3, 2, 3, -2))
sketch11.addConstraint(Sketcher.Constraint("Symmetric", 0, 3, 3, 3, -2))
sketch11.addConstraint(Sketcher.Constraint("Vertical", 0, 3, 1, 3))
sketch11.addConstraint(Sketcher.Constraint("Diameter", 0, 2.0))
sketch11.addConstraint(Sketcher.Constraint("DistanceY", 0, 3, -1, 1, 6.0))
sketch11.addConstraint(Sketcher.Constraint("DistanceY", -1, 1, 1, 3, 22.2))
sketch11.addConstraint(Sketcher.Constraint("DistanceX", 2, 3, 1, 3, 19.7))
sketch11.setExpression("Constraints[6]", "Params.sketch11_diameter")
pocket4 = body.newObject("PartDesign::Pocket", "Pocket003")
pocket4.Profile = sketch11
pocket4.setExpression("Length", "Params.pocket4_length")

# Sketch on XZ plane
sketch12 = body.newObject("Sketcher::SketchObject", "Sketch011")
sketch12.AttachmentSupport = (doc.getObject("XZ_Plane"), [""])
sketch12.MapMode = "FlatFace"
sketch12.AttachmentOffset = App.Placement(V(0, 0, 8.5), App.Rotation())
sketch12.addGeometry(Part.LineSegment(V(-11.8, -14.6, 0), V(-11.8, -17.1, 0)), False)
sketch12.addGeometry(Part.LineSegment(V(-11.8, -17.1, 0), V(-7.8, -17.1, 0)), False)
sketch12.addGeometry(Part.LineSegment(V(-7.8, -17.1, 0), V(-7.8, -14.6, 0)), False)
sketch12.addGeometry(Part.LineSegment(V(-7.8, -14.6, 0), V(-11.8, -14.6, 0)), False)
sketch12.addGeometry(Part.LineSegment(V(7.8, -14.6, 0), V(7.8, -17.1, 0)), False)
sketch12.addGeometry(Part.LineSegment(V(7.8, -17.1, 0), V(11.8, -17.1, 0)), False)
sketch12.addGeometry(Part.LineSegment(V(11.8, -17.1, 0), V(11.8, -14.6, 0)), False)
sketch12.addGeometry(Part.LineSegment(V(11.8, -14.6, 0), V(7.8, -14.6, 0)), False)
sketch12.addConstraint(Sketcher.Constraint("Coincident", 0, 2, 1, 1))
sketch12.addConstraint(Sketcher.Constraint("Coincident", 1, 2, 2, 1))
sketch12.addConstraint(Sketcher.Constraint("Coincident", 2, 2, 3, 1))
sketch12.addConstraint(Sketcher.Constraint("Coincident", 3, 2, 0, 1))
sketch12.addConstraint(Sketcher.Constraint("Coincident", 4, 2, 5, 1))
sketch12.addConstraint(Sketcher.Constraint("Coincident", 5, 2, 6, 1))
sketch12.addConstraint(Sketcher.Constraint("Coincident", 6, 2, 7, 1))
sketch12.addConstraint(Sketcher.Constraint("Coincident", 7, 2, 4, 1))
sketch12.addConstraint(Sketcher.Constraint("Vertical", 0))
sketch12.addConstraint(Sketcher.Constraint("Horizontal", 1))
sketch12.addConstraint(Sketcher.Constraint("Vertical", 2))
sketch12.addConstraint(Sketcher.Constraint("Horizontal", 3))
sketch12.addConstraint(Sketcher.Constraint("Vertical", 4))
sketch12.addConstraint(Sketcher.Constraint("Horizontal", 5))
sketch12.addConstraint(Sketcher.Constraint("Vertical", 6))
sketch12.addConstraint(Sketcher.Constraint("Horizontal", 7))
sketch12.addConstraint(Sketcher.Constraint("Symmetric", 1, 2, 4, 2, -2))
sketch12.addConstraint(Sketcher.Constraint("Symmetric", 3, 2, 6, 2, -2))
sketch12.addConstraint(Sketcher.Constraint("DistanceX", 1, 1, 1, 2, 4.0))
sketch12.addConstraint(Sketcher.Constraint("DistanceY", 0, 2, 0, 1, 2.5))
sketch12.addConstraint(Sketcher.Constraint("DistanceX", 1, 2, 4, 2, 15.7))
sketch12.addConstraint(Sketcher.Constraint("DistanceY", 0, 2, -1, 1, 17.07))
sketch12.setExpression("Constraints[18]", "Params.sketch12_width")
sketch12.setExpression("Constraints[19]", "Params.sketch12_height")
pocket5 = body.newObject("PartDesign::Pocket", "Pocket004")
pocket5.Profile = sketch12
pocket5.setExpression("Length", "Params.pocket5_length")

# Sketch on XY plane
sketch13 = body.newObject("Sketcher::SketchObject", "Sketch012")
sketch13.AttachmentSupport = (doc.getObject("XY_Plane"), [""])
sketch13.MapMode = "FlatFace"
sketch13.AttachmentOffset = App.Placement(V(0, 0, -26.5), App.Rotation())
sketch13.addGeometry(Part.LineSegment(V(2, 25, 0), V(2, 20, 0)), False)
sketch13.addGeometry(Part.LineSegment(V(2, 20, 0), V(-2, 20, 0)), False)
sketch13.addGeometry(Part.LineSegment(V(-2, 20, 0), V(-2, 25, 0)), False)
sketch13.addGeometry(Part.LineSegment(V(-2, 25, 0), V(2, 25, 0)), False)
sketch13.addConstraint(Sketcher.Constraint("Coincident", 0, 2, 1, 1))
sketch13.addConstraint(Sketcher.Constraint("Coincident", 1, 2, 2, 1))
sketch13.addConstraint(Sketcher.Constraint("Coincident", 2, 2, 3, 1))
sketch13.addConstraint(Sketcher.Constraint("Coincident", 3, 2, 0, 1))
sketch13.addConstraint(Sketcher.Constraint("Vertical", 0))
sketch13.addConstraint(Sketcher.Constraint("Horizontal", 1))
sketch13.addConstraint(Sketcher.Constraint("Vertical", 2))
sketch13.addConstraint(Sketcher.Constraint("Horizontal", 3))
sketch13.addConstraint(Sketcher.Constraint("DistanceX", 1, 2, 1, 1, 4.0))
sketch13.addConstraint(Sketcher.Constraint("DistanceY", 0, 2, 0, 1, 5.0))
sketch13.addConstraint(Sketcher.Constraint("DistanceX", -1, 1, 0, 2, 2.0))
sketch13.addConstraint(Sketcher.Constraint("DistanceY", -1, 1, 0, 2, 20.0))
sketch13.setExpression("Constraints[8]", "Params.sketch13_width")
sketch13.setExpression("Constraints[9]", "Params.sketch13_height")
pad8 = body.newObject("PartDesign::Pad", "Pad007")
pad8.Profile = sketch13
pad8.setExpression("Length", "Params.pad8_length")
pad8.Reversed = True

# Sketch on XY plane
sketch14 = body.newObject("Sketcher::SketchObject", "Sketch013")
sketch14.AttachmentSupport = (doc.getObject("XY_Plane"), [""])
sketch14.MapMode = "FlatFace"
sketch14.AttachmentOffset = App.Placement(V(0, 0, -41), App.Rotation())
sketch14.addGeometry(Part.Circle(V(0, 22.5, 0), V(0, 0, 1), 1.5), False)
sketch14.addConstraint(Sketcher.Constraint("PointOnObject", 0, 3, -2))
sketch14.addConstraint(Sketcher.Constraint("Diameter", 0, 3.0))
sketch14.addConstraint(Sketcher.Constraint("DistanceY", -1, 1, 0, 3, 22.5))
sketch14.setExpression("Constraints[1]", "Params.sketch14_diameter")
pad9 = body.newObject("PartDesign::Pad", "Pad008")
pad9.Profile = sketch14
pad9.setExpression("Length", "Params.pad9_length")
pad9.Reversed = True
pad9.setExpression("TaperAngle", "Params.pad9_taper")

doc.recompute()
